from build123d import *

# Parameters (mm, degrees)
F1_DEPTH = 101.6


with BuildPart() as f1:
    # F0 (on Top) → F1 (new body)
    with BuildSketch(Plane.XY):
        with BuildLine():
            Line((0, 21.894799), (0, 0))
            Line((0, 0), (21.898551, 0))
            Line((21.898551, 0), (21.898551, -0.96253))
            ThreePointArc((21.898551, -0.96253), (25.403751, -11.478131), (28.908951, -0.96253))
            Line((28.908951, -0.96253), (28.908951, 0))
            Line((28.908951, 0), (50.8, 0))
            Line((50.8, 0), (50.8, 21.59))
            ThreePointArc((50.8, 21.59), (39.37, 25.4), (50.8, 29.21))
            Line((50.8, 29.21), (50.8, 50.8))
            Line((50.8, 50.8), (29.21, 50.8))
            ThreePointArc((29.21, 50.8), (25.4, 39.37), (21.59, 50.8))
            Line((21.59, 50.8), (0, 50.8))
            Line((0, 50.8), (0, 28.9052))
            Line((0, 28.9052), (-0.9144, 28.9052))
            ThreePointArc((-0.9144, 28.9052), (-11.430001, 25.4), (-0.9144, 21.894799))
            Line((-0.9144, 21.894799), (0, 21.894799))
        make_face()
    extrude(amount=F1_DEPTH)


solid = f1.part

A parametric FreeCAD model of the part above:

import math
import FreeCAD as App
import Part
import Sketcher
Q = App.Units.Quantity

doc = App.newDocument("Part")
body = doc.addObject("PartDesign::Body", "Body")

sketch1 = body.newObject("Sketcher::SketchObject", "Sketch")
sketch1.AttachmentSupport = (doc.getObject("XY_Plane"), [""])
sketch1.MapMode = "FlatFace"
sketch1.addGeometry([
    Part.LineSegment(App.Vector(0, 21.9, 0), App.Vector(0, 0, 0)),
    Part.LineSegment(App.Vector(0, 0, 0), App.Vector(21.9, 0, 0)),
    Part.LineSegment(App.Vector(21.9, 0, 0), App.Vector(21.9, -1, 0)),
    Part.ArcOfCircle(Part.Circle(App.Vector(25.4, -5.6, 0), App.Vector(0, 0, 1), 5.8), math.radians(127), math.radians(413)),
    Part.LineSegment(App.Vector(28.9, -1, 0), App.Vector(28.9, 0, 0)),
    Part.LineSegment(App.Vector(28.9, 0, 0), App.Vector(50.8, 0, 0)),
    Part.LineSegment(App.Vector(50.8, 0, 0), App.Vector(50.8, 21.6, 0)),
    Part.ArcOfCircle(Part.Circle(App.Vector(45.7, 25.4, 0), App.Vector(0, 0, 1), 6.3), math.radians(37), math.radians(323)),
    Part.LineSegment(App.Vector(50.8, 29.2, 0), App.Vector(50.8, 50.8, 0)),
    Part.LineSegment(App.Vector(50.8, 50.8, 0), App.Vector(29.2, 50.8, 0)),
    Part.ArcOfCircle(Part.Circle(App.Vector(25.4, 45.7, 0), App.Vector(0, 0, 1), 6.3), math.radians(127), math.radians(413)),
    Part.LineSegment(App.Vector(21.6, 50.8, 0), App.Vector(0, 50.8, 0)),
    Part.LineSegment(App.Vector(0, 50.8, 0), App.Vector(0, 28.9, 0)),
    Part.LineSegment(App.Vector(0, 28.9, 0), App.Vector(-0.9, 28.9, 0)),
    Part.ArcOfCircle(Part.Circle(App.Vector(-5.6, 25.4, 0), App.Vector(0, 0, 1), 5.8), math.radians(37), math.radians(323)),
    Part.LineSegment(App.Vector(-0.9, 21.9, 0), App.Vector(0, 21.9, 0)),
], False)
sketch1.addConstraint([
    Sketcher.Constraint("Coincident", 0, 2, 1, 1),
    Sketcher.Constraint("Coincident", 1, 2, 2, 1),
    Sketcher.Constraint("Coincident", 2, 2, 3, 1),
    Sketcher.Constraint("Coincident", 3, 2, 4, 1),
    Sketcher.Constraint("Coincident", 4, 2, 5, 1),
    Sketcher.Constraint("Coincident", 5, 2, 6, 1),
    Sketcher.Constraint("Coincident", 6, 2, 7, 2),
    Sketcher.Constraint("Coincident", 7, 1, 8, 1),
    Sketcher.Constraint("Coincident", 8, 2, 9, 1),
    Sketcher.Constraint("Coincident", 9, 2, 10, 2),
    Sketcher.Constraint("Coincident", 10, 1, 11, 1),
    Sketcher.Constraint("Coincident", 11, 2, 12, 1),
    Sketcher.Constraint("Coincident", 12, 2, 13, 1),
    Sketcher.Constraint("Coincident", 13, 2, 14, 1),
    Sketcher.Constraint("Coincident", 14, 2, 15, 1),
    Sketcher.Constraint("Coincident", 15, 2, 0, 1),
    Sketcher.Constraint("Vertical", 0),
    Sketcher.Constraint("Horizontal", 1),
    Sketcher.Constraint("Vertical", 2),
    Sketcher.Constraint("Vertical", 4),
    Sketcher.Constraint("Horizontal", 5),
    Sketcher.Constraint("Vertical", 6),
    Sketcher.Constraint("Vertical", 8),
    Sketcher.Constraint("Horizontal", 9),
    Sketcher.Constraint("Horizontal", 11),
    Sketcher.Constraint("Vertical", 12),
    Sketcher.Constraint("Horizontal", 13),
    Sketcher.Constraint("Horizontal", 15),
    Sketcher.Constraint("Coincident", 0, 2, -1, 1),
    Sketcher.Constraint("Equal", 7, 10),
    Sketcher.Constraint("Equal", 3, 14),
    Sketcher.Constraint("PointOnObject", 4, 2, -1),
    Sketcher.Constraint("PointOnObject", 11, 2, -2),
    Sketcher.Constraint("Horizontal", 7, 3, 14, 3),
    Sketcher.Constraint("Horizontal", 2, 2, 3, 2),
    Sketcher.Constraint("Horizontal", 9, 2, 10, 1),
    Sketcher.Constraint("Vertical", 6, 2, 7, 1),
    Sketcher.Constraint("Vertical", 13, 2, 14, 2),
    Sketcher.Constraint("Equal", 9, 11),
    Sketcher.Constraint("Equal", 11, 6),
    Sketcher.Constraint("Equal", 6, 8),
    Sketcher.Constraint("Radius", 3, Q("0.23 in")),
    Sketcher.Constraint("Radius", 7, Q("0.25 in")),
    Sketcher.Constraint("DistanceY", -1, 1, 7, 3, Q("1 in")),
    Sketcher.Constraint("DistanceX", -1, 1, 10, 3, Q("1 in")),
    Sketcher.Constraint("DistanceX", 9, 2, 9, 1, Q("0.85 in")),
    Sketcher.Constraint("DistanceX", 13, 2, 13, 1, Q("0.036 in")),
    Sketcher.Constraint("DistanceY", 0, 2, 0, 1, Q("0.862 in")),
    Sketcher.Constraint("DistanceX", 1, 2, 3, 3, Q("0.138 in")),
    Sketcher.Constraint("DistanceX", 1, 1, 1, 2, 21.898551),
    Sketcher.Constraint("DistanceY", 2, 2, 2, 1, 0.96253),
])
pad1 = body.newObject("PartDesign::Pad", "Pad")
pad1.Profile = sketch1
pad1.Length = Q("4 in")

doc.recompute()
